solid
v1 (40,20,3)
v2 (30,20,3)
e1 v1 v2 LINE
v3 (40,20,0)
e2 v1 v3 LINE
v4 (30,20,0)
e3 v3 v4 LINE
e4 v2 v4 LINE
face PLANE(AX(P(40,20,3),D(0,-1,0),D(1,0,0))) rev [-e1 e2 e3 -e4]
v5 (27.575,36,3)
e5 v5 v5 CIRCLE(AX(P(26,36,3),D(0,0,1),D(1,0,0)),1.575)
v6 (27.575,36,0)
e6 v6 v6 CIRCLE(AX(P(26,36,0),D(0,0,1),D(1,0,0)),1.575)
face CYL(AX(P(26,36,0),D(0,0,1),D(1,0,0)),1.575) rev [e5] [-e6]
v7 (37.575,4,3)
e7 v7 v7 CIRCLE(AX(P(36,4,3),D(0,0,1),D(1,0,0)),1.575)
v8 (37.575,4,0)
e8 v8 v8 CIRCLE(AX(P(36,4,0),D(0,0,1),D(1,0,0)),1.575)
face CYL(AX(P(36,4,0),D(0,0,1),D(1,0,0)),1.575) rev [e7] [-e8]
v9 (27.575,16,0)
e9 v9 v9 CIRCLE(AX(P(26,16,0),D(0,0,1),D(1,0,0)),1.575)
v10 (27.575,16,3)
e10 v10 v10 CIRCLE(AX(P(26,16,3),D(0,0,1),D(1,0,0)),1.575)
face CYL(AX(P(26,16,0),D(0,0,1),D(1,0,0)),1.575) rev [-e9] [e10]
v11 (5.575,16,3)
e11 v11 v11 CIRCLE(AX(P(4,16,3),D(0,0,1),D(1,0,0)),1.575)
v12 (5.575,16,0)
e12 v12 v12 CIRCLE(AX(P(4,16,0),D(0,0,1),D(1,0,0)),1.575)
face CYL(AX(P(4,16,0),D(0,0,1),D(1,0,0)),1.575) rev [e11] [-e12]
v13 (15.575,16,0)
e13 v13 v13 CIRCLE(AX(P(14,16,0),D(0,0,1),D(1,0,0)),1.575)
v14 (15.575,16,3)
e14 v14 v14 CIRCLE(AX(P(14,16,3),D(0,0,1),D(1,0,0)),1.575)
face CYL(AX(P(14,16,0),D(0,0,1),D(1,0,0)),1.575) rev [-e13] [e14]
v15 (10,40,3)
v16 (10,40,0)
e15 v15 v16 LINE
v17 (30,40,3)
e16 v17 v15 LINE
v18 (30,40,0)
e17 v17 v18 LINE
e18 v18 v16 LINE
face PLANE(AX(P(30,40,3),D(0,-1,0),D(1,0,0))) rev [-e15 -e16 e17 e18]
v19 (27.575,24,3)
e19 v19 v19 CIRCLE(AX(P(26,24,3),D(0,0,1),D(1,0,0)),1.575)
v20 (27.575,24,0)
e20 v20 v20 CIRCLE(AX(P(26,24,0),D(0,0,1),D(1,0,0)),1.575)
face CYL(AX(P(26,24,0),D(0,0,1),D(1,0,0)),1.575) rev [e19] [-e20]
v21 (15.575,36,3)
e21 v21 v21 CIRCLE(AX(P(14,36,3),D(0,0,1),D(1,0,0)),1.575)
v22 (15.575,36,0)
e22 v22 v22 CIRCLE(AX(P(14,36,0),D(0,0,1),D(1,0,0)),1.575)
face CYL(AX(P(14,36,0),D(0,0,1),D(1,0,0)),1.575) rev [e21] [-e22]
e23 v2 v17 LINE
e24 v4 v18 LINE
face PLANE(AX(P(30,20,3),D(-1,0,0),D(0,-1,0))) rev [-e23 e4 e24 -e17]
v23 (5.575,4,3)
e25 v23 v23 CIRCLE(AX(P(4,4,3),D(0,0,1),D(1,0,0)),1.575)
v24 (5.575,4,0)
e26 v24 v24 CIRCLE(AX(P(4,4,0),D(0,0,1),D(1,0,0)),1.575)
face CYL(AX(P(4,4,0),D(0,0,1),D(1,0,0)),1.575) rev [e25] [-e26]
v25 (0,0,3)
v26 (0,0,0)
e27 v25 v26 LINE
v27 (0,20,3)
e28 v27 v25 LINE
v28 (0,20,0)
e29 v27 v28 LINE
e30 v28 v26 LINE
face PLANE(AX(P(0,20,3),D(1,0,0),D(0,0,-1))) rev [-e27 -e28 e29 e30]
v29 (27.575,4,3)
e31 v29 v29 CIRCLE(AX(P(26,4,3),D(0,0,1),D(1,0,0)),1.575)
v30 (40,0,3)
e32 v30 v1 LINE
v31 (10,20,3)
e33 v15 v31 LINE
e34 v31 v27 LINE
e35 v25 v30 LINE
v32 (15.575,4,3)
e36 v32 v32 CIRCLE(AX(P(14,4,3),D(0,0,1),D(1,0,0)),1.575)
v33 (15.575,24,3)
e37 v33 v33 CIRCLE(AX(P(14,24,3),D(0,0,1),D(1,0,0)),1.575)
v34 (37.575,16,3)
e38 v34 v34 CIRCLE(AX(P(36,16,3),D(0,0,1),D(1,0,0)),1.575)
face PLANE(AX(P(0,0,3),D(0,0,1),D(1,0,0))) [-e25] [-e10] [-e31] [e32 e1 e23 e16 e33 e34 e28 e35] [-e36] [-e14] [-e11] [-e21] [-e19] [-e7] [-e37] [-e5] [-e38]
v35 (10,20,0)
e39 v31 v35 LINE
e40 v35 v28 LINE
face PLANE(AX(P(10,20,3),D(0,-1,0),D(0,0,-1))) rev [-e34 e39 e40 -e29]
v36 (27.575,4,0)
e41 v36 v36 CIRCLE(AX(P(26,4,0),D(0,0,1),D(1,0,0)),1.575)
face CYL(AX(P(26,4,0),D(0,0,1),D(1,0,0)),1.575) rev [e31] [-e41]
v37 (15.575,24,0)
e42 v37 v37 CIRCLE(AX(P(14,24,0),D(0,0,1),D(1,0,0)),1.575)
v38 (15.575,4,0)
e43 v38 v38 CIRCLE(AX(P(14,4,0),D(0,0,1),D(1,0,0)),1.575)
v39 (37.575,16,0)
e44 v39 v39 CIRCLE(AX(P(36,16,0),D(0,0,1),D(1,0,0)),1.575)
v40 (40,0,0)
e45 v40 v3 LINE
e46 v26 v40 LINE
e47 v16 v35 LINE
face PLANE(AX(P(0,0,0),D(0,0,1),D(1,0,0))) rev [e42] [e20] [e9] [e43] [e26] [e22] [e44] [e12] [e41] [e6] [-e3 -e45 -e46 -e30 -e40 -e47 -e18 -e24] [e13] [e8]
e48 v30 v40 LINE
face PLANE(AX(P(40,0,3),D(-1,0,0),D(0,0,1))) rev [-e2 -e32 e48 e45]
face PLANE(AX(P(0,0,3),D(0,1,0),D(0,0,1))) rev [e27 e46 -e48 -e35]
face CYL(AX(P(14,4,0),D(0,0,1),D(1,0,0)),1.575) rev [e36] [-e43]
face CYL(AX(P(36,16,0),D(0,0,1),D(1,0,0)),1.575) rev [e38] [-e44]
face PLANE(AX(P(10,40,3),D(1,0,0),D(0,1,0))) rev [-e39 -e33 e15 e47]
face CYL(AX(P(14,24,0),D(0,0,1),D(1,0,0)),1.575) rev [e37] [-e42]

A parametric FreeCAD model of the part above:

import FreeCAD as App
import Part
import Sketcher
Q = App.Units.Quantity


def add_polygon(sketch, points):
    """Adds a closed chain of lines whose ends are joined by coincident constraints."""
    first, n = sketch.GeometryCount, len(points)
    for a, b in zip(points, points[1:] + points[:1]):
        sketch.addGeometry(Part.LineSegment(App.Vector(*a, 0), App.Vector(*b, 0)), False)
    for i in range(n):
        sketch.addConstraint(Sketcher.Constraint("Coincident", first + i, 2, first + (i + 1) % n, 1))

doc = App.newDocument("Part")
body = doc.addObject("PartDesign::Body", "Body")

# Sketch on XY plane
sketch1 = doc.addObject("Sketcher::SketchObject", "Sketch")
body.addObject(sketch1)
sketch1.AttachmentSupport = (doc.XY_Plane, [""])
sketch1.MapMode = "FlatFace"
add_polygon(sketch1, [(0, 0), (40, 0), (40, 20), (30, 20), (30, 40), (10, 40), (10, 20), (0, 20)])  # lines 0-7
sketch1.addConstraint([
    Sketcher.Constraint("Horizontal", 0),
    Sketcher.Constraint("Vertical", 1),
    Sketcher.Constraint("Horizontal", 2),
    Sketcher.Constraint("Vertical", 3),
    Sketcher.Constraint("Horizontal", 4),
    Sketcher.Constraint("Vertical", 5),
    Sketcher.Constraint("Horizontal", 6),
    Sketcher.Constraint("Vertical", 7),
    Sketcher.Constraint("Coincident", 7, 2, -1, 1),
    Sketcher.Constraint("Horizontal", 2, 2, 5, 2),
    Sketcher.Constraint("Equal", 2, 6),
    Sketcher.Constraint("Equal", 4, 1),
    Sketcher.Constraint("Equal", 1, 3),
    Sketcher.Constraint("DistanceX", 0, 1, 0, 2, Q("40 mm")),
    Sketcher.Constraint("DistanceX", 2, 2, 2, 1, Q("10 mm")),
])
pad1 = doc.addObject("PartDesign::Pad", "Pad")
body.addObject(pad1)
pad1.Profile = sketch1
pad1.Length = 3

# Sketch on XY plane
sketch2 = doc.addObject("Sketcher::SketchObject", "Sketch001")
body.addObject(sketch2)
sketch2.AttachmentSupport = (doc.XY_Plane, [""])
sketch2.MapMode = "FlatFace"
sketch2.AttachmentOffset = App.Placement(App.Vector(0, 0, 3), App.Rotation())
sketch2.addGeometry([
    Part.Circle(App.Vector(14, 36, 0), App.Vector(0, 0, 1), 1.6),  # 0
    Part.Circle(App.Vector(26, 36, 0), App.Vector(0, 0, 1), 1.6),  # 1
    Part.Circle(App.Vector(26, 24, 0), App.Vector(0, 0, 1), 1.6),  # 2
    Part.Circle(App.Vector(14, 24, 0), App.Vector(0, 0, 1), 1.6),  # 3
    Part.Circle(App.Vector(4, 16, 0), App.Vector(0, 0, 1), 1.6),  # 4
    Part.Circle(App.Vector(4, 4, 0), App.Vector(0, 0, 1), 1.6),  # 5
    Part.Circle(App.Vector(14, 16, 0), App.Vector(0, 0, 1), 1.6),  # 6
    Part.Circle(App.Vector(14, 4, 0), App.Vector(0, 0, 1), 1.6),  # 7
    Part.Circle(App.Vector(36, 16, 0), App.Vector(0, 0, 1), 1.6),  # 8
    Part.Circle(App.Vector(36, 4, 0), App.Vector(0, 0, 1), 1.6),  # 9
    Part.Circle(App.Vector(26, 4, 0), App.Vector(0, 0, 1), 1.6),  # 10
    Part.Circle(App.Vector(26, 16, 0), App.Vector(0, 0, 1), 1.6),  # 11
], False)
sketch2.addConstraint([
    Sketcher.Constraint("Equal", 0, 1),
    Sketcher.Constraint("Equal", 1, 2),
    Sketcher.Constraint("Equal", 2, 3),
    Sketcher.Constraint("Equal", 3, 4),
    Sketcher.Constraint("Equal", 4, 5),
    Sketcher.Constraint("Equal", 5, 6),
    Sketcher.Constraint("Equal", 6, 7),
    Sketcher.Constraint("Equal", 7, 8),
    Sketcher.Constraint("Equal", 8, 9),
    Sketcher.Constraint("Equal", 9, 10),
    Sketcher.Constraint("Equal", 10, 11),
    Sketcher.Constraint("Horizontal", 0, 3, 1, 3),
    Sketcher.Constraint("Horizontal", 2, 3, 3, 3),
    Sketcher.Constraint("Horizontal", 4, 3, 6, 3),
    Sketcher.Constraint("Horizontal", 5, 3, 7, 3),
    Sketcher.Constraint("Horizontal", 6, 3, 8, 3),
    Sketcher.Constraint("Horizontal", 7, 3, 9, 3),
    Sketcher.Constraint("Horizontal", 9, 3, 10, 3),
    Sketcher.Constraint("Horizontal", 8, 3, 11, 3),
    Sketcher.Constraint("Vertical", 1, 3, 2, 3),
    Sketcher.Constraint("Vertical", 0, 3, 3, 3),
    Sketcher.Constraint("Vertical", 4, 3, 5, 3),
    Sketcher.Constraint("Vertical", 3, 3, 6, 3),
    Sketcher.Constraint("Vertical", 6, 3, 7, 3),
    Sketcher.Constraint("Vertical", 8, 3, 9, 3),
    Sketcher.Constraint("Vertical", 2, 3, 10, 3),
    Sketcher.Constraint("Vertical", 10, 3, 11, 3),
    Sketcher.Constraint("Diameter", 0, Q("3.15 mm")),
    Sketcher.Constraint("DistanceX", -1, 1, 0, 3, Q("14 mm")),
    Sketcher.Constraint("DistanceY", -1, 1, 0, 3, Q("36 mm")),
    Sketcher.Constraint("DistanceX", -1, 1, 1, 3, Q("26 mm")),
    Sketcher.Constraint("DistanceY", -1, 1, 2, 3, Q("24 mm")),
    Sketcher.Constraint("DistanceX", -1, 1, 4, 3, Q("4 mm")),
    Sketcher.Constraint("DistanceY", -1, 1, 4, 3, Q("16 mm")),
    Sketcher.Constraint("DistanceY", -1, 1, 5, 3, Q("4 mm")),
    Sketcher.Constraint("DistanceX", -1, 1, 8, 3, Q("36 mm")),
])
pocket1 = doc.addObject("PartDesign::Pocket", "Pocket")
body.addObject(pocket1)
pocket1.Profile = sketch2
pocket1.Length = 3

doc.recompute()
